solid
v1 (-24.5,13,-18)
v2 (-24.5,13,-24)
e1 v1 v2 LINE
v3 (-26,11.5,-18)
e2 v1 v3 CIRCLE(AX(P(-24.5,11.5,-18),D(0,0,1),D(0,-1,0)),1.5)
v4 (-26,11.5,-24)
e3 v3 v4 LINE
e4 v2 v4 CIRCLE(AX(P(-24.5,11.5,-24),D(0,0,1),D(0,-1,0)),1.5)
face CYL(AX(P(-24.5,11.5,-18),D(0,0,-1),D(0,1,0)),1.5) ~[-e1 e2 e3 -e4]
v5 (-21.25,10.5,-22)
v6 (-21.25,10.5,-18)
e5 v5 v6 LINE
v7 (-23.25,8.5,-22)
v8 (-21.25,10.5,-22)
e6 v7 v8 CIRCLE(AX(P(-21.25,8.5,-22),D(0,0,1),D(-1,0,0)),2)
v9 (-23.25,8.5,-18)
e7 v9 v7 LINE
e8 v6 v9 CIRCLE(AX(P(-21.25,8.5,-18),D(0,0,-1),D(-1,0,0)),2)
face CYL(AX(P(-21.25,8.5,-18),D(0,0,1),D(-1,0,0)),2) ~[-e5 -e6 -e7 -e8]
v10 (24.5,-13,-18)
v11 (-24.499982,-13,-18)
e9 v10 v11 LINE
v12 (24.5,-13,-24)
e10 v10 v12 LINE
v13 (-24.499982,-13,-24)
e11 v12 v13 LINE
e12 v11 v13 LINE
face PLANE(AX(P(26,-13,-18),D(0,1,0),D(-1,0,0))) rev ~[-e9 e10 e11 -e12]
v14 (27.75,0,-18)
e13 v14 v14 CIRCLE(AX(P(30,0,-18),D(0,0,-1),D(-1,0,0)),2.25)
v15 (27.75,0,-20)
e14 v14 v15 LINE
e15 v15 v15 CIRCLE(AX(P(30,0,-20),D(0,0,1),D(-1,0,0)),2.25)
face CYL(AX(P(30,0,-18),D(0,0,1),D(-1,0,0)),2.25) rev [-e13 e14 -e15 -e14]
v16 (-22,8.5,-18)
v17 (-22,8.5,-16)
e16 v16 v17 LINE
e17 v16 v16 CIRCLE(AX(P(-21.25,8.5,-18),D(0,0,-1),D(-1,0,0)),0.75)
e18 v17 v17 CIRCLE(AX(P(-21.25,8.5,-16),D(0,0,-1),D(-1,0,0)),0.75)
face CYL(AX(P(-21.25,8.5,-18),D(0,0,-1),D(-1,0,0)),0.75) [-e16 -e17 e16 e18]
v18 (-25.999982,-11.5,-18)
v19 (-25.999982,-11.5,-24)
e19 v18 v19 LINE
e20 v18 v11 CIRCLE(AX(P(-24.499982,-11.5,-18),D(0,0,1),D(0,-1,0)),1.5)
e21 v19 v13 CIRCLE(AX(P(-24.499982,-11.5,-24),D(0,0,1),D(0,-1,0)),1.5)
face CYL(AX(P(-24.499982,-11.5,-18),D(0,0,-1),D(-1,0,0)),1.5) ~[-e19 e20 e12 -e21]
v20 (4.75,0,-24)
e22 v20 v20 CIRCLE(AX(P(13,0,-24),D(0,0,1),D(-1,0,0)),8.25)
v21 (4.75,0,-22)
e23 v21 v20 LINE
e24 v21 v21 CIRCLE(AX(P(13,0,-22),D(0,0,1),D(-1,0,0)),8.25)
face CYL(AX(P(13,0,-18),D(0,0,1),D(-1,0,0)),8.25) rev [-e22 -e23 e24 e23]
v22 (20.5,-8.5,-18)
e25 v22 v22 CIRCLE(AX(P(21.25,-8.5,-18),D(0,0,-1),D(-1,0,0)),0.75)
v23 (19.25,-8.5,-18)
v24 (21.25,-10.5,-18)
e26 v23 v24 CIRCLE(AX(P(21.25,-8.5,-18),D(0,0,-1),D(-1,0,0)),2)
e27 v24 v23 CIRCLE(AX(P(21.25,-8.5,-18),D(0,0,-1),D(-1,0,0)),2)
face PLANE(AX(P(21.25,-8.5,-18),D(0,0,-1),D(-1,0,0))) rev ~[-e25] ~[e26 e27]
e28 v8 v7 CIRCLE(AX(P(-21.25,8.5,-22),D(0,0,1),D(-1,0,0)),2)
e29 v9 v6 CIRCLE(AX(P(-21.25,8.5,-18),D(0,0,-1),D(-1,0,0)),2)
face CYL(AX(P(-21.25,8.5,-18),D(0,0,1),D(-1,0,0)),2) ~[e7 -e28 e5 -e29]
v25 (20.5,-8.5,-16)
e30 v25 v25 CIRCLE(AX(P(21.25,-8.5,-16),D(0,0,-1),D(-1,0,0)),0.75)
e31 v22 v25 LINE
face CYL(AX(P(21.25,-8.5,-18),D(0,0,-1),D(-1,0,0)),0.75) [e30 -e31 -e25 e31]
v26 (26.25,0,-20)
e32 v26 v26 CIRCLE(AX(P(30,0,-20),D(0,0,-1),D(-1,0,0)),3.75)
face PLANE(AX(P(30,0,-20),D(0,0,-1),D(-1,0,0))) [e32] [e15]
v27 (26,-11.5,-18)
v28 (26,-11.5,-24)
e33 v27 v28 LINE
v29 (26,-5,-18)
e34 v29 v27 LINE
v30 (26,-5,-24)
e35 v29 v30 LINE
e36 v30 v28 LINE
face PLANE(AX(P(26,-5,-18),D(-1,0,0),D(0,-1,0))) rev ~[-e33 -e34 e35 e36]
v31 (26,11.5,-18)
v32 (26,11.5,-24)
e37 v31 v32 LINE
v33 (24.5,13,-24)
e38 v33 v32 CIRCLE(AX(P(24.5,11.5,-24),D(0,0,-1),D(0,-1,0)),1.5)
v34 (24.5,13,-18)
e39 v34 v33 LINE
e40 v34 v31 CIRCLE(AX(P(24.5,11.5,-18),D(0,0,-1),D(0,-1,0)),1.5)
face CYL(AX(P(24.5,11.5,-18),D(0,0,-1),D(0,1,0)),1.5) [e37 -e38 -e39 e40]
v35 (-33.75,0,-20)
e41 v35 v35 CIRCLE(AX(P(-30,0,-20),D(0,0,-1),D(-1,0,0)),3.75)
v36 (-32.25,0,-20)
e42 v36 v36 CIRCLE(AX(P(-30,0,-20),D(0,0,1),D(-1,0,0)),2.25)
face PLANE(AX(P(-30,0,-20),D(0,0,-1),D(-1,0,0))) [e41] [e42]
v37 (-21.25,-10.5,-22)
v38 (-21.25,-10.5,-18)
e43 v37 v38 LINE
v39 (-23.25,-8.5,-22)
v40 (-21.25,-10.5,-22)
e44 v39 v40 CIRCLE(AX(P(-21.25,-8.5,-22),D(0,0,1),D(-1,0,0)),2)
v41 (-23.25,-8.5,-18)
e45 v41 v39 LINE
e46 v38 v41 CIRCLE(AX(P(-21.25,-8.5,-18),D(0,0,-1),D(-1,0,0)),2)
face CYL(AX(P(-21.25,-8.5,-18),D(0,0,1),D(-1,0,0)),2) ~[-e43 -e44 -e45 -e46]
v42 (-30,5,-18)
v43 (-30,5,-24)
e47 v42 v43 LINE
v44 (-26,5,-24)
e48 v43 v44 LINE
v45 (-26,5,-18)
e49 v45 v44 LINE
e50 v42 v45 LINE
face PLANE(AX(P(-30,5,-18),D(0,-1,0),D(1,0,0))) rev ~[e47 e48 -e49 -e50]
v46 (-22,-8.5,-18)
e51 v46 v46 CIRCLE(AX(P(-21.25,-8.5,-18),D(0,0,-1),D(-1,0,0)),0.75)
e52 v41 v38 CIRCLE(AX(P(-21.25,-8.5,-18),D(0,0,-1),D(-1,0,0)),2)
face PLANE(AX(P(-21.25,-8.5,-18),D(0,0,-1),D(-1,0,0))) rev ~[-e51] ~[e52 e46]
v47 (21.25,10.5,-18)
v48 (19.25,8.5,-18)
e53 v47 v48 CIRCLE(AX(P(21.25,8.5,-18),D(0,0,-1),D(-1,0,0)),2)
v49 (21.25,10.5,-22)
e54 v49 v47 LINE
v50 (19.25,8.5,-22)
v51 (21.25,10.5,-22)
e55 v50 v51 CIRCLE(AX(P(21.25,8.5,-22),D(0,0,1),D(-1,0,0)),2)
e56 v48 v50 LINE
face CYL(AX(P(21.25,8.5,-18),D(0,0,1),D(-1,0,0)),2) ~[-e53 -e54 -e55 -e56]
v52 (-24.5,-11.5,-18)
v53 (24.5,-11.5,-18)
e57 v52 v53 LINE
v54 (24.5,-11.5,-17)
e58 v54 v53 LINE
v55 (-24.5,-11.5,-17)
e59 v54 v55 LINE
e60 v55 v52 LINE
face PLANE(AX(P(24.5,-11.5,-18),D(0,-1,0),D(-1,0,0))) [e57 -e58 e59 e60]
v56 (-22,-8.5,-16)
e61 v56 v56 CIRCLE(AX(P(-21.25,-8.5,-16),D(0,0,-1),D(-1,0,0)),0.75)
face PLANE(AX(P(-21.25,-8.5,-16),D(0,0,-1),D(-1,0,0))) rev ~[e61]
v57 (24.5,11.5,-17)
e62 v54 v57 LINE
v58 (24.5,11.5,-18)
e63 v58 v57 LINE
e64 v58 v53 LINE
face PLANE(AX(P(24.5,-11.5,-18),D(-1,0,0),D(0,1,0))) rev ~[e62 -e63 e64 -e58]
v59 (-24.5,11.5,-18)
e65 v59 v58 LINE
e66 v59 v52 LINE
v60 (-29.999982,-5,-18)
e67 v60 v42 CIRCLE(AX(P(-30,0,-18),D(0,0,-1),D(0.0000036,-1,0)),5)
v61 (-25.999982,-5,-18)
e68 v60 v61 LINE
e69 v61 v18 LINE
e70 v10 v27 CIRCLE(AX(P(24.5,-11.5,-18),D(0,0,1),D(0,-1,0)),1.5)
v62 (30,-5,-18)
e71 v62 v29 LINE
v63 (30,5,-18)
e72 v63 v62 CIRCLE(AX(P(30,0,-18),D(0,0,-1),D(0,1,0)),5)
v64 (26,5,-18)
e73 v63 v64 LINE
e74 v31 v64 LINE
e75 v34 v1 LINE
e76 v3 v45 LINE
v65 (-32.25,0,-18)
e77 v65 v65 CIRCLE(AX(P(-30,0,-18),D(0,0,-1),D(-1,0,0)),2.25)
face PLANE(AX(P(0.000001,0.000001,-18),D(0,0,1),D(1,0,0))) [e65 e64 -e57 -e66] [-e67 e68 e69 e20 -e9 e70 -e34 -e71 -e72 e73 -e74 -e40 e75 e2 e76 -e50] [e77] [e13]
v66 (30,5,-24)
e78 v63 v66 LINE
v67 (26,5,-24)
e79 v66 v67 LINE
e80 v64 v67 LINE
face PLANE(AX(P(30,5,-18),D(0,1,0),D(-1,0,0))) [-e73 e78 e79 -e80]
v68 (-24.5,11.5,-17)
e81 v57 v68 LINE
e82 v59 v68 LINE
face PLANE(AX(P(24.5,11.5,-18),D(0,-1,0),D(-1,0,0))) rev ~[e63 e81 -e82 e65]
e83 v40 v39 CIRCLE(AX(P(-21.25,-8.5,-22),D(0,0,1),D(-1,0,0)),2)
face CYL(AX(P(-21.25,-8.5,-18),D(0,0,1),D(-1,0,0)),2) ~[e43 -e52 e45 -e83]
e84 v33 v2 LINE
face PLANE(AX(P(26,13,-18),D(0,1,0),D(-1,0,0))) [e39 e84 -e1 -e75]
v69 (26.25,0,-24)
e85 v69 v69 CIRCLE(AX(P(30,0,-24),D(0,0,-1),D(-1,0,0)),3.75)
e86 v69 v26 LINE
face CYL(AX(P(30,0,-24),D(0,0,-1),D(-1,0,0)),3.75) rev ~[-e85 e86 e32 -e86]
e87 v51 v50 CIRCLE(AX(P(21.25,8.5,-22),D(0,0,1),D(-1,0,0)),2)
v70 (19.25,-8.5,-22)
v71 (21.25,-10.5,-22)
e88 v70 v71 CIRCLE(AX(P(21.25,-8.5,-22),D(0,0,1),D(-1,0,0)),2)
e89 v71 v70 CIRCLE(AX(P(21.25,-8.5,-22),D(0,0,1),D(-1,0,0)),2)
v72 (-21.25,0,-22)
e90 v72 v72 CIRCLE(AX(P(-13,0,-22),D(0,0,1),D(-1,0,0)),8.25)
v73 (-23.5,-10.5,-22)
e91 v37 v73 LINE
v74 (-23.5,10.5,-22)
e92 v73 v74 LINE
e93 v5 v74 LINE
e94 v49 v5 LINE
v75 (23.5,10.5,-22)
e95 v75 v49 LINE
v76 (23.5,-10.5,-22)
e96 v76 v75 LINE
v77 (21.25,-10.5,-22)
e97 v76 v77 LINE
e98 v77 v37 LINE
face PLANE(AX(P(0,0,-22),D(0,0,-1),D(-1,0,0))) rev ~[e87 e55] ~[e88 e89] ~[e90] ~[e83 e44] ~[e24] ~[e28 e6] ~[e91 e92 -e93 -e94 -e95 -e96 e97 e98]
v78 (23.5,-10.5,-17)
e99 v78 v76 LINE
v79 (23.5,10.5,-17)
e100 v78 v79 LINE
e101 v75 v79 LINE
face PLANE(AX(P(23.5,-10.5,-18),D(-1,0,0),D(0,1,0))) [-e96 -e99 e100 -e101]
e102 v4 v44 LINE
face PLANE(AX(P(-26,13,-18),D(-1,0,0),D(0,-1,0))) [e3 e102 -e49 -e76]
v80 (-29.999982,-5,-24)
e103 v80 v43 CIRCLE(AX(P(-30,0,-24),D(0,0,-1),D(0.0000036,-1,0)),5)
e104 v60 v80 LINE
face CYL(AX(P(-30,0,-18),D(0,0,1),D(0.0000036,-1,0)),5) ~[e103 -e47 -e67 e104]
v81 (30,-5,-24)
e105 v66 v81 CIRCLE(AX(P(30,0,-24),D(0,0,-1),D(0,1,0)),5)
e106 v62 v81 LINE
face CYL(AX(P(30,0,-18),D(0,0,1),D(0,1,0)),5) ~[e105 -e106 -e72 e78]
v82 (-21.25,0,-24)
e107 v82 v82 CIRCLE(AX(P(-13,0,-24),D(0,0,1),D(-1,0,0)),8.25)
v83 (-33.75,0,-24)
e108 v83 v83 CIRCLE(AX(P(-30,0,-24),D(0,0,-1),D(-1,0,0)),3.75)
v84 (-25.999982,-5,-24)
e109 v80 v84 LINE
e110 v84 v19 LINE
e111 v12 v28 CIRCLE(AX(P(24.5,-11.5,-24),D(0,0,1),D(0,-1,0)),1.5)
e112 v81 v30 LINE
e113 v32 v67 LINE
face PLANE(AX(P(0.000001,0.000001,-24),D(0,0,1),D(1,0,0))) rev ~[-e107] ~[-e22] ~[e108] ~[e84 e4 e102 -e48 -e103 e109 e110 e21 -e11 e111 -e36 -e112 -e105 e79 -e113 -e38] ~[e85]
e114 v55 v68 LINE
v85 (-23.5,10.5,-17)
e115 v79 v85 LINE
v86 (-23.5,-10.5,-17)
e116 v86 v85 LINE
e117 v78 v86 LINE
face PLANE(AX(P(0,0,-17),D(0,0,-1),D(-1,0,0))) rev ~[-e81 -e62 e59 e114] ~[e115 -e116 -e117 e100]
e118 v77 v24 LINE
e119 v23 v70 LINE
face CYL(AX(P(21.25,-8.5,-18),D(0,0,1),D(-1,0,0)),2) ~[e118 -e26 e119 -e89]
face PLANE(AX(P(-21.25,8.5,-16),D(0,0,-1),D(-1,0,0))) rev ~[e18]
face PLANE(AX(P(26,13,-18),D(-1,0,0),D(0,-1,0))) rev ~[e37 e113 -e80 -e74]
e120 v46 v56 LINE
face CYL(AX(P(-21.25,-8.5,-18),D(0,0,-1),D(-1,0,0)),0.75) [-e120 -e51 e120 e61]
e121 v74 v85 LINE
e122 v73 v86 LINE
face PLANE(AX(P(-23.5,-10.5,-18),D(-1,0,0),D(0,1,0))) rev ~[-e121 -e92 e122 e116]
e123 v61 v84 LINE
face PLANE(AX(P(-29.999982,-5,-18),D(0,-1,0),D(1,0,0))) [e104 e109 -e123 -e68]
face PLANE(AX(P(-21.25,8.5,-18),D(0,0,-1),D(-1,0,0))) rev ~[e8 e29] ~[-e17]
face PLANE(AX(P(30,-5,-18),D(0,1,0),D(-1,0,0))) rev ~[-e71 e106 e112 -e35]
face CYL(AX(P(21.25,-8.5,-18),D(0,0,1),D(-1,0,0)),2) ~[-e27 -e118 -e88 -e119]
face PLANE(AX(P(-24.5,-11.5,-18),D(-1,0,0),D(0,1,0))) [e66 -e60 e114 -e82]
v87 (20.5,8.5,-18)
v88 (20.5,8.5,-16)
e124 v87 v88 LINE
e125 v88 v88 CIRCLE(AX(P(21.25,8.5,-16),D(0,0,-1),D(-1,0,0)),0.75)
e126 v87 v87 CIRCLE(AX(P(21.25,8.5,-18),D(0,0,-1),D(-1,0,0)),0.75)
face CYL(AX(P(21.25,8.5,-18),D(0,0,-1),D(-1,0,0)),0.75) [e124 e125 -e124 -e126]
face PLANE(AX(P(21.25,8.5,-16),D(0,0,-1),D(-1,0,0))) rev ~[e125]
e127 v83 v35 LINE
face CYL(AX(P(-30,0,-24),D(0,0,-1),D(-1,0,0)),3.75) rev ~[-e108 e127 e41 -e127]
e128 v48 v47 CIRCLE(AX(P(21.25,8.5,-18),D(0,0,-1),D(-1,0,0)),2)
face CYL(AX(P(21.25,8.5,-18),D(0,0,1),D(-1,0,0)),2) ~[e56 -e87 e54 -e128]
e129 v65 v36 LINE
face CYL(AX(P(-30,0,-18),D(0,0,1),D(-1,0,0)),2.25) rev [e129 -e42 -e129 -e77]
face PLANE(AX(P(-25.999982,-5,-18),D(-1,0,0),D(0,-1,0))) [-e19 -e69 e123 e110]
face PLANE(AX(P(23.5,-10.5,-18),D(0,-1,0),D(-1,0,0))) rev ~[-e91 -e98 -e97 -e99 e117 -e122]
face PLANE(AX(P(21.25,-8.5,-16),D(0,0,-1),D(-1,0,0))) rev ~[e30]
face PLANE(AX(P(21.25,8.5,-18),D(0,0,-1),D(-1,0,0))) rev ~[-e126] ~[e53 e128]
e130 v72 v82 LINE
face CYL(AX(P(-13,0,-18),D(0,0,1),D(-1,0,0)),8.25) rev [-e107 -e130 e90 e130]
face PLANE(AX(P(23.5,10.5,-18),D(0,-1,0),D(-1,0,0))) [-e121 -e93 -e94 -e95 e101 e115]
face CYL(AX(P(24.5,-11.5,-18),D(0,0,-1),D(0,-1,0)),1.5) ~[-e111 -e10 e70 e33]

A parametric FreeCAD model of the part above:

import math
import FreeCAD as App
import Part
import Sketcher
from FreeCAD import Vector


def edges_at(feature, points):
    """Names of the edges that pass closest to the given points."""
    edges = feature.Shape.Edges
    near = lambda p: min(range(len(edges)), key=lambda i: edges[i].distToShape(Part.Vertex(*p))[0])
    return sorted({f"Edge{near(p) + 1}" for p in points})


def add_polygon(sketch, points):
    """Adds a closed chain of lines whose ends are joined by coincident constraints."""
    first, n = sketch.GeometryCount, len(points)
    for a, b in zip(points, points[1:] + points[:1]):
        sketch.addGeometry(Part.LineSegment(App.Vector(*a, 0), App.Vector(*b, 0)), False)
    for i in range(n):
        sketch.addConstraint(Sketcher.Constraint("Coincident", first + i, 2, first + (i + 1) % n, 1))

doc = App.newDocument("Part")
body = doc.addObject("PartDesign::Body", "Body")

sketch1 = doc.addObject("Sketcher::SketchObject", "Sketch")
body.addObject(sketch1)
sketch1.AttachmentSupport = (doc.XY_Plane, [""])
sketch1.MapMode = "FlatFace"
sketch1.addGeometry([
    Part.LineSegment(Vector(26, 13, 0), Vector(-26, 13, 0)),
    Part.LineSegment(Vector(-26, 13, 0), Vector(-26, 5, 0)),
    Part.LineSegment(Vector(-26, 5, 0), Vector(-30, 5, 0)),
    Part.ArcOfCircle(Part.Circle(Vector(-30, 0, 0), Vector(0, 0, 1), 5), math.radians(90), math.radians(270)),
    Part.LineSegment(Vector(-30, -5, 0), Vector(-26, -5, 0)),
    Part.LineSegment(Vector(-26, -5, 0), Vector(-26, -13, 0)),
    Part.LineSegment(Vector(-26, -13, 0), Vector(26, -13, 0)),
    Part.LineSegment(Vector(26, -13, 0), Vector(26, -5, 0)),
    Part.LineSegment(Vector(26, -5, 0), Vector(30, -5, 0)),
    Part.ArcOfCircle(Part.Circle(Vector(30, 0, 0), Vector(0, 0, 1), 5), math.radians(-90), math.radians(90)),
    Part.LineSegment(Vector(30, 5, 0), Vector(26, 5, 0)),
    Part.LineSegment(Vector(26, 5, 0), Vector(26, 13, 0)),
    Part.Circle(Vector(30, 0, 0), Vector(0, 0, 1), 2.2),
    Part.Circle(Vector(-30, 0, 0), Vector(0, 0, 1), 2.2),
], False)
sketch1.addConstraint([
    Sketcher.Constraint("Coincident", 0, 2, 1, 1),
    Sketcher.Constraint("Coincident", 1, 2, 2, 1),
    Sketcher.Constraint("Tangent", 2, 2, 3, 1),
    Sketcher.Constraint("Tangent", 3, 2, 4, 1),
    Sketcher.Constraint("Coincident", 4, 2, 5, 1),
    Sketcher.Constraint("Coincident", 5, 2, 6, 1),
    Sketcher.Constraint("Coincident", 6, 2, 7, 1),
    Sketcher.Constraint("Coincident", 7, 2, 8, 1),
    Sketcher.Constraint("Coincident", 8, 2, 9, 1),
    Sketcher.Constraint("Tangent", 9, 2, 10, 1),
    Sketcher.Constraint("Coincident", 10, 2, 11, 1),
    Sketcher.Constraint("Coincident", 11, 2, 0, 1),
    Sketcher.Constraint("Horizontal", 0),
    Sketcher.Constraint("Vertical", 1),
    Sketcher.Constraint("Horizontal", 2),
    Sketcher.Constraint("Horizontal", 4),
    Sketcher.Constraint("Vertical", 5),
    Sketcher.Constraint("Horizontal", 6),
    Sketcher.Constraint("Vertical", 7),
    Sketcher.Constraint("Horizontal", 8),
    Sketcher.Constraint("Horizontal", 10),
    Sketcher.Constraint("Vertical", 11),
    Sketcher.Constraint("Coincident", 12, 3, 9, 3),
    Sketcher.Constraint("Coincident", 13, 3, 3, 3),
    Sketcher.Constraint("Equal", 3, 9),
    Sketcher.Constraint("Equal", 12, 13),
    Sketcher.Constraint("Symmetric", 3, 3, 9, 3, -1, 1),
    Sketcher.Constraint("Symmetric", 5, 2, 11, 2, -1, 1),
    Sketcher.Constraint("Symmetric", 1, 2, 10, 2, -2),
    Sketcher.Constraint("Equal", 4, 8),
    Sketcher.Constraint("Radius", 3, 5.0),
    Sketcher.Constraint("Diameter", 12, 4.5),
    Sketcher.Constraint("DistanceX", 0, 2, 0, 1, 52.0),
    Sketcher.Constraint("DistanceX", 2, 2, 2, 1, 4.0),
    Sketcher.Constraint("DistanceY", 1, 2, 1, 1, 8.0),
    Sketcher.Constraint("DistanceX", 6, 1, 6, 2, 51.999982),
])
pad1 = doc.addObject("PartDesign::Pad", "Pad")
body.addObject(pad1)
pad1.Profile = sketch1
pad1.Length = 6

sketch2 = doc.addObject("Sketcher::SketchObject", "Sketch001")
body.addObject(sketch2)
sketch2.AttachmentSupport = (doc.XY_Plane, [""])
sketch2.MapMode = "FlatFace"
add_polygon(sketch2, [(-24, 12), (-24, -12), (24, -12), (24, 12)])
add_polygon(sketch2, [(24, -10), (-24, -10), (-24, 10), (24, 10)])
sketch2.addConstraint([
    Sketcher.Constraint("Vertical", 0),
    Sketcher.Constraint("Horizontal", 1),
    Sketcher.Constraint("Vertical", 2),
    Sketcher.Constraint("Horizontal", 3),
    Sketcher.Constraint("Horizontal", 4),
    Sketcher.Constraint("Vertical", 5),
    Sketcher.Constraint("Horizontal", 6),
    Sketcher.Constraint("Vertical", 7),
    Sketcher.Constraint("Symmetric", 0, 2, 2, 2, -1, 1),
    Sketcher.Constraint("Symmetric", 4, 2, 6, 2, -1, 1),
    Sketcher.Constraint("DistanceX", 1, 1, 1, 2, 49.0),
    Sketcher.Constraint("DistanceX", 4, 2, 4, 1, 47.0),
    Sketcher.Constraint("DistanceY", 0, 2, 0, 1, 23.0),
    Sketcher.Constraint("DistanceY", 5, 1, 5, 2, 21.0),
])
pad2 = doc.addObject("PartDesign::Pad", "Pad001")
body.addObject(pad2)
pad2.Profile = sketch2
pad2.Length = 2
pad2.Midplane = True

sketch3 = doc.addObject("Sketcher::SketchObject", "Sketch002")
body.addObject(sketch3)
sketch3.AttachmentSupport = (doc.XY_Plane, [""])
sketch3.MapMode = "FlatFace"
add_polygon(sketch3, [(-24, 10), (-24, -10), (24, -10), (24, 10)])
sketch3.addConstraint([
    Sketcher.Constraint("Vertical", 0),
    Sketcher.Constraint("Horizontal", 1),
    Sketcher.Constraint("Vertical", 2),
    Sketcher.Constraint("Horizontal", 3),
    Sketcher.Constraint("Symmetric", 0, 2, 2, 2, -1, 1),
    Sketcher.Constraint("DistanceX", 1, 1, 1, 2, 47.0),
    Sketcher.Constraint("DistanceY", 0, 2, 0, 1, 21.0),
])
pocket1 = doc.addObject("PartDesign::Pocket", "Pocket")
body.addObject(pocket1)
pocket1.Profile = sketch3
pocket1.Length = 4
pocket1.Reversed = True

sketch4 = doc.addObject("Sketcher::SketchObject", "Sketch003")
body.addObject(sketch4)
sketch4.AttachmentSupport = (doc.XY_Plane, [""])
sketch4.MapMode = "FlatFace"
sketch4.addGeometry([
    Part.Circle(Vector(-13, 0, 0), Vector(0, 0, 1), 8),
    Part.Circle(Vector(13, 0, 0), Vector(0, 0, 1), 8),
], False)
sketch4.addConstraint([
    Sketcher.Constraint("Equal", 0, 1),
    Sketcher.Constraint("Symmetric", 0, 3, 1, 3, -1, 1),
    Sketcher.Constraint("PointOnObject", 0, 3, -1),
    Sketcher.Constraint("Diameter", 0, 16.5),
    Sketcher.Constraint("DistanceX", 0, 3, -1, 1, 13.0),
])
pocket2 = doc.addObject("PartDesign::Pocket", "Pocket001")
body.addObject(pocket2)
pocket2.Profile = sketch4
pocket2.Type = "ThroughAll"
pocket2.Midplane = True

sketch5 = doc.addObject("Sketcher::SketchObject", "Sketch004")
body.addObject(sketch5)
sketch5.AttachmentSupport = (doc.XY_Plane, [""])
sketch5.MapMode = "FlatFace"
sketch5.AttachmentOffset = App.Placement(Vector(0, 0, 6), App.Rotation())
sketch5.addGeometry([
    Part.Circle(Vector(-30, 0, 0), Vector(0, 0, 1), 3.8),
    Part.Circle(Vector(30, 0, 0), Vector(0, 0, 1), 3.8),
], False)
sketch5.addConstraint([
    Sketcher.Constraint("Equal", 0, 1),
    Sketcher.Constraint("Symmetric", 0, 3, 1, 3, -1, 1),
    Sketcher.Constraint("PointOnObject", 0, 3, -1),
    Sketcher.Constraint("Diameter", 0, 7.5),
    Sketcher.Constraint("DistanceX", 0, 3, -1, 1, 30.0),
])
pocket3 = doc.addObject("PartDesign::Pocket", "Pocket002")
body.addObject(pocket3)
pocket3.Profile = sketch5
pocket3.Length = 4

sketch6 = doc.addObject("Sketcher::SketchObject", "Sketch005")
body.addObject(sketch6)
sketch6.AttachmentSupport = (doc.XY_Plane, [""])
sketch6.MapMode = "FlatFace"
sketch6.addGeometry([
    Part.Circle(Vector(21.2, 8.5, 0), Vector(0, 0, 1), 2),
    Part.Circle(Vector(-21.2, 8.5, 0), Vector(0, 0, 1), 2),
    Part.Circle(Vector(-21.2, -8.5, 0), Vector(0, 0, 1), 2),
    Part.Circle(Vector(21.2, -8.5, 0), Vector(0, 0, 1), 2),
], False)
sketch6.addConstraint([
    Sketcher.Constraint("Equal", 0, 1),
    Sketcher.Constraint("Equal", 1, 2),
    Sketcher.Constraint("Equal", 2, 3),
    Sketcher.Constraint("Symmetric", 0, 3, 2, 3, -1, 1),
    Sketcher.Constraint("Symmetric", 1, 3, 3, 3, -1, 1),
    Sketcher.Constraint("Symmetric", 0, 3, 1, 3, -2),
    Sketcher.Constraint("Diameter", 0, 4.0),
    Sketcher.Constraint("DistanceY", 2, 3, 1, 3, 17.0),
    Sketcher.Constraint("DistanceX", 1, 3, 0, 3, 42.5),
])
pad3 = doc.addObject("PartDesign::Pad", "Pad002")
body.addObject(pad3)
pad3.Profile = sketch6
pad3.Length = 6

sketch7 = doc.addObject("Sketcher::SketchObject", "Sketch006")
body.addObject(sketch7)
sketch7.AttachmentSupport = (doc.XY_Plane, [""])
sketch7.MapMode = "FlatFace"
sketch7.addGeometry([
    Part.Circle(Vector(-21.2, 8.5, 0), Vector(0, 0, 1), 0.8),
    Part.Circle(Vector(-21.2, -8.5, 0), Vector(0, 0, 1), 0.8),
    Part.Circle(Vector(21.2, 8.5, 0), Vector(0, 0, 1), 0.8),
    Part.Circle(Vector(21.2, -8.5, 0), Vector(0, 0, 1), 0.8),
], False)
sketch7.addConstraint([
    Sketcher.Constraint("Equal", 0, 1),
    Sketcher.Constraint("Equal", 1, 2),
    Sketcher.Constraint("Equal", 2, 3),
    Sketcher.Constraint("Symmetric", 1, 3, 2, 3, -1, 1),
    Sketcher.Constraint("Symmetric", 0, 3, 3, 3, -1, 1),
    Sketcher.Constraint("Symmetric", 0, 3, 2, 3, -2),
    Sketcher.Constraint("Diameter", 0, 1.5),
    Sketcher.Constraint("DistanceY", 1, 3, 0, 3, 17.0),
    Sketcher.Constraint("DistanceX", 0, 3, 2, 3, 42.5),
])
pad4 = doc.addObject("PartDesign::Pad", "Pad003")
body.addObject(pad4)
pad4.Profile = sketch7
pad4.Length = 2
pad4.Reversed = True
doc.recompute()

fillet = doc.addObject("PartDesign::Fillet", "Fillet")
body.addObject(fillet)
fillet.Base = (pad4, edges_at(pad4, [
    (26, 13, 3),
    (26, -13, 3),
    (-26, 13, 3),
    (-26, -13, 3),
]))
fillet.Radius = 1.5
body2 = doc.addObject("PartDesign::Body", "Body001")
doc.recompute()

body.Placement = App.Placement(Vector(0, 0, -18), App.Rotation(Vector(0, 1, 0), 180))
boolean = doc.addObject("PartDesign::Boolean", "Boolean")
body2.addObject(boolean)
boolean.Type = "Fuse"
boolean.addObjects([body])

doc.recompute()
